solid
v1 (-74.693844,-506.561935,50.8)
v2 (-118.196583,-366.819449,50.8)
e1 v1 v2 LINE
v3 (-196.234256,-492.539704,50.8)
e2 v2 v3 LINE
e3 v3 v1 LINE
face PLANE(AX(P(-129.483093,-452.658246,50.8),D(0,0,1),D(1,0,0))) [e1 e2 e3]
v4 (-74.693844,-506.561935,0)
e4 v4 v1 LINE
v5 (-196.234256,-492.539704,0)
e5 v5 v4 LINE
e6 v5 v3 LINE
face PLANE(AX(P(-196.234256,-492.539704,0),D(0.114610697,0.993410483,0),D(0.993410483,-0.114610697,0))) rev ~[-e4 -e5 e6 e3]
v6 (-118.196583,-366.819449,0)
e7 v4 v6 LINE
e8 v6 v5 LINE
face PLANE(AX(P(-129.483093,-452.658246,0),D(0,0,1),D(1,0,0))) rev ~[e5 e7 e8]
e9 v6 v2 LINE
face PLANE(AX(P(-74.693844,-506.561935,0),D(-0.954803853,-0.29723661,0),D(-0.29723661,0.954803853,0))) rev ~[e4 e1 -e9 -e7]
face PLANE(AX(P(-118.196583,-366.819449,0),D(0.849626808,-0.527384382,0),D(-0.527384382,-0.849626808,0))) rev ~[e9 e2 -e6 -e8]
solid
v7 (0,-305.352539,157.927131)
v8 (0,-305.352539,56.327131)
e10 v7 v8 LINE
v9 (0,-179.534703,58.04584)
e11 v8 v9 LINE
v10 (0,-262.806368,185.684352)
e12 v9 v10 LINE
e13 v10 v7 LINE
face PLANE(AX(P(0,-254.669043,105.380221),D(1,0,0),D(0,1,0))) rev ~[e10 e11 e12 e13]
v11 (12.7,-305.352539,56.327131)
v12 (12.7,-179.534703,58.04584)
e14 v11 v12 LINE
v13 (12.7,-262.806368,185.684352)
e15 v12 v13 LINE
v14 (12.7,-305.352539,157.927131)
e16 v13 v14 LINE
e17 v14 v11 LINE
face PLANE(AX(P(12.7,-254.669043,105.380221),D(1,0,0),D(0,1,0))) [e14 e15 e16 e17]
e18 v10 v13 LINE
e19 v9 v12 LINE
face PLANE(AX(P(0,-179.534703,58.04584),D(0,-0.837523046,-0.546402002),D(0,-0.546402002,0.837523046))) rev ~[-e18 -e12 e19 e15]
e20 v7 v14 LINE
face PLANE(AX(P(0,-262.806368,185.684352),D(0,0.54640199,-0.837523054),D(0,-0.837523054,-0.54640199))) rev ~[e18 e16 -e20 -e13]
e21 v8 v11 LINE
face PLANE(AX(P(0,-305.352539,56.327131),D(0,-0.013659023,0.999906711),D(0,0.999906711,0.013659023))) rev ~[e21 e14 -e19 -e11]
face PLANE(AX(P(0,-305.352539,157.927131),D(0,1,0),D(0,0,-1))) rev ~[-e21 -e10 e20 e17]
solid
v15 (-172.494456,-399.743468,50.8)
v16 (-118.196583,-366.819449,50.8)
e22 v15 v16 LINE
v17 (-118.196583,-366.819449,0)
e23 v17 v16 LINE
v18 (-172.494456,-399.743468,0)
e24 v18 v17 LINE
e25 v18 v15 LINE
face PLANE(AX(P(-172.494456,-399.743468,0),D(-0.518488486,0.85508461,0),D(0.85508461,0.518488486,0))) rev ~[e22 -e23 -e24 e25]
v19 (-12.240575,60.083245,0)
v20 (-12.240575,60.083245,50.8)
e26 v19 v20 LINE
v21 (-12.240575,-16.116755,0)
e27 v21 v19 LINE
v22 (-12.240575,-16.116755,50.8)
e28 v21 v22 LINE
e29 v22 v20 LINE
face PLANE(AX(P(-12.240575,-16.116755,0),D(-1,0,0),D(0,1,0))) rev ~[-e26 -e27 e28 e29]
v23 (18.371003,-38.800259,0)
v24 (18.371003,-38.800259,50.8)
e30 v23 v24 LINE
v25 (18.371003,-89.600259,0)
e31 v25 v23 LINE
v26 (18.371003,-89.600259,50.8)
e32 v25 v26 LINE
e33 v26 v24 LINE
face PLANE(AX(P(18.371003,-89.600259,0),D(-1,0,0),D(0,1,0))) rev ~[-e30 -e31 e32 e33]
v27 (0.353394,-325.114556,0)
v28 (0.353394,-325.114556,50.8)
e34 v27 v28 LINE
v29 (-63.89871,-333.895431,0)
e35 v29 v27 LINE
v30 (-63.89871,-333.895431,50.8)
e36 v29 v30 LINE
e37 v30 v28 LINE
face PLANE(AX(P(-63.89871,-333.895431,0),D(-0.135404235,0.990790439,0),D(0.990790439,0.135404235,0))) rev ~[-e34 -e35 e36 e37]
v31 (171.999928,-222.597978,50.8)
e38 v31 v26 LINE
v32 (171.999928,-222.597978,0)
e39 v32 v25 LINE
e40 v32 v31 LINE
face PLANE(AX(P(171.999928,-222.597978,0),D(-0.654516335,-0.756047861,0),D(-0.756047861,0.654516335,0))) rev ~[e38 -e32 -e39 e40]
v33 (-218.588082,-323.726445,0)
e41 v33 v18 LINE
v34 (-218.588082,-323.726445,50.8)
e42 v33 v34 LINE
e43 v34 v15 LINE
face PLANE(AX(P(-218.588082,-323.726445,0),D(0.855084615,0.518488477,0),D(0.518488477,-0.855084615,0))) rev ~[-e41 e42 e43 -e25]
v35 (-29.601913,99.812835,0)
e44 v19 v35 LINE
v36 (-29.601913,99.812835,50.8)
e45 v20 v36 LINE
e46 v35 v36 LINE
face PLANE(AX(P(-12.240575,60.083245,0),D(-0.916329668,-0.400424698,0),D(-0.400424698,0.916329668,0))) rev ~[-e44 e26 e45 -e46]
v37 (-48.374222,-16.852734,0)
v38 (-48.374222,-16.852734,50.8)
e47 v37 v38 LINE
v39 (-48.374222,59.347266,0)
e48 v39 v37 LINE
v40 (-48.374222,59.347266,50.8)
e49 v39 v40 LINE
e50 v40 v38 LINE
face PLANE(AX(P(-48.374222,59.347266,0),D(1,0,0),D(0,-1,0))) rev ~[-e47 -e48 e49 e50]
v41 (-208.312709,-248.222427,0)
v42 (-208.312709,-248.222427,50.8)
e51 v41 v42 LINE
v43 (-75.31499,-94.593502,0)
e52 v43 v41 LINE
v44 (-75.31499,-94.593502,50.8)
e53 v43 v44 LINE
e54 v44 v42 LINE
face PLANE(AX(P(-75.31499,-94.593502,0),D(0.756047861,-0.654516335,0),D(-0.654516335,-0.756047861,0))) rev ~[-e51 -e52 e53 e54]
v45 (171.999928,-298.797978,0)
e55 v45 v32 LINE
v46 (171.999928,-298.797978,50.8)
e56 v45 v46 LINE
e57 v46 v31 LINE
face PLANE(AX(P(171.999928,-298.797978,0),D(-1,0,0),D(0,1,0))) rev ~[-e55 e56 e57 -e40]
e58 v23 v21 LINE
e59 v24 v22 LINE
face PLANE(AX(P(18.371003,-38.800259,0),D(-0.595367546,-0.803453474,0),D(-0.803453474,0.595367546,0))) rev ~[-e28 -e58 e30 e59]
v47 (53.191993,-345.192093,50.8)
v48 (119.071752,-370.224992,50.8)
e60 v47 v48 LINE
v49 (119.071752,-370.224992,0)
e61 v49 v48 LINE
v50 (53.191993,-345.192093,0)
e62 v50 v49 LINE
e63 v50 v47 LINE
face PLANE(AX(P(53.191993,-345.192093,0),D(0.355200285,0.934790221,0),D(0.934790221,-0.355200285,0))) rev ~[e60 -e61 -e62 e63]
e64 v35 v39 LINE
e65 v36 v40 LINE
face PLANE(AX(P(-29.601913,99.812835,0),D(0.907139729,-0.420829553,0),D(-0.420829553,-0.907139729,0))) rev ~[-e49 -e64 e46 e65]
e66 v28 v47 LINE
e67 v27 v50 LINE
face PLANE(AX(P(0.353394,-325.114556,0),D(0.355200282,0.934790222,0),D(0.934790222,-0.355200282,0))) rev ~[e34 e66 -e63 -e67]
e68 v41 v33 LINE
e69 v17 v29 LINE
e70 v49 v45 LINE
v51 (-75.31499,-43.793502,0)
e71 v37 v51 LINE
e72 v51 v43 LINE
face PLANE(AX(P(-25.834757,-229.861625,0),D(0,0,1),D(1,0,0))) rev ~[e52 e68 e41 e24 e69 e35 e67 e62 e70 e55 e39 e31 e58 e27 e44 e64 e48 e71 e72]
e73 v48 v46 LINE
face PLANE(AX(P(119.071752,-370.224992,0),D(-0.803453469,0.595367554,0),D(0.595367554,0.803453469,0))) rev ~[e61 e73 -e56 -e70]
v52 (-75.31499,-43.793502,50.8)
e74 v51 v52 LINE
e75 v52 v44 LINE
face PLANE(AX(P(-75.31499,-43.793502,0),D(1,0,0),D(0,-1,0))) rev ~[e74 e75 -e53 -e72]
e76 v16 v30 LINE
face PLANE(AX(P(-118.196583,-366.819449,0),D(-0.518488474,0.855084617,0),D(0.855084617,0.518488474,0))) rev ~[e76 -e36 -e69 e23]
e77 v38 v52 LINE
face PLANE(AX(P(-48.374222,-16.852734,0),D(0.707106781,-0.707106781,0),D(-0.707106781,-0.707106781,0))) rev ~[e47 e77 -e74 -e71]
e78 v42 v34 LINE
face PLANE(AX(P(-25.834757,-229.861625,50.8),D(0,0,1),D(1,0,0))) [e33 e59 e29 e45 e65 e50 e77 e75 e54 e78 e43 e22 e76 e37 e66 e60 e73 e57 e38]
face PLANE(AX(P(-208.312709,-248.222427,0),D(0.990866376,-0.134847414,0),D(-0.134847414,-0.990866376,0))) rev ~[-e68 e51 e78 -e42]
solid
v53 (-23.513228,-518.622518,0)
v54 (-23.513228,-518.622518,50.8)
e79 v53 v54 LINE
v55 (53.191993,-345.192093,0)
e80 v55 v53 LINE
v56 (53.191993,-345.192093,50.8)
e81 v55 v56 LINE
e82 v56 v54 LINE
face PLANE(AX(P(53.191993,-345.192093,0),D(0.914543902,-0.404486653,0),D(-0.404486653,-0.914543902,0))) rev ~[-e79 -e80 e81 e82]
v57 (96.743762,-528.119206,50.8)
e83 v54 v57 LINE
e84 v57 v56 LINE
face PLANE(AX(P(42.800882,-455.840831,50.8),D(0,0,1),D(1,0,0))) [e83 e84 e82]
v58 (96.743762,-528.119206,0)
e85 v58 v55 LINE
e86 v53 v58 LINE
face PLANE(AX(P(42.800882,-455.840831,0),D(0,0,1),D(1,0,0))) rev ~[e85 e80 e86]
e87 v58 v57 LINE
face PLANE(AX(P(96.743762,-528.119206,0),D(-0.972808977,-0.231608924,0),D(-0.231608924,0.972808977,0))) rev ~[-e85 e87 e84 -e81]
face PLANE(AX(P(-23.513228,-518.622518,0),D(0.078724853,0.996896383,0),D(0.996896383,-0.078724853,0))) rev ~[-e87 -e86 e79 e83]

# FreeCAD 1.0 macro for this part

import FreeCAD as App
import Part
import Sketcher

V = App.Vector
Q = App.Units.Quantity


def add_polygon(sketch, points):
    """Adds a closed chain of lines whose ends are joined by coincident constraints."""
    first, n = sketch.GeometryCount, len(points)
    for a, b in zip(points, points[1:] + points[:1]):
        sketch.addGeometry(Part.LineSegment(App.Vector(*a, 0), App.Vector(*b, 0)), False)
    for i in range(n):
        sketch.addConstraint(Sketcher.Constraint("Coincident", first + i, 2, first + (i + 1) % n, 1))

doc = App.newDocument("Part")
body = doc.addObject("PartDesign::Body", "Body")
body.AllowCompound = True

sketch1 = doc.addObject("Sketcher::SketchObject", "Sketch")
body.addObject(sketch1)
sketch1.AttachmentSupport = (doc.XY_Plane, [""])
sketch1.MapMode = "FlatFace"
add_polygon(sketch1, [(-48, -17), (-75, -44), (-75, -95), (-208, -248), (-219, -324), (-172, -400), (-118, -367), (-64, -334), (0, -325), (53, -345), (119, -370), (172, -299), (172, -223), (18, -90), (18, -39), (-12, -16), (-12, 60), (-30, 100), (-48, 59)])
add_polygon(sketch1, [(97, -528), (53, -345), (-24, -519)])
add_polygon(sketch1, [(-75, -507), (-118, -367), (-196, -493)])
sketch1.addConstraint([
    Sketcher.Constraint("Vertical", 1),
    Sketcher.Constraint("Vertical", 11),
    Sketcher.Constraint("Vertical", 13),
    Sketcher.Constraint("Vertical", 15),
    Sketcher.Constraint("Vertical", 18),
    Sketcher.Constraint("Coincident", 19, 2, 8, 2),
    Sketcher.Constraint("Coincident", 22, 2, 5, 2),
    Sketcher.Constraint("Perpendicular", 4, 5),
    Sketcher.Constraint("Parallel", 5, 6),
    Sketcher.Constraint("Parallel", 8, 9),
    Sketcher.Constraint("Perpendicular", 2, 12),
    Sketcher.Constraint("Perpendicular", 10, 14),
    Sketcher.Constraint("Equal", 1, 13),
    Sketcher.Constraint("Equal", 11, 15),
    Sketcher.Constraint("Equal", 15, 18),
    Sketcher.Constraint("Equal", 5, 6),
    Sketcher.Constraint("Equal", 4, 10),
    Sketcher.Constraint("Equal", 2, 12),
    Sketcher.Constraint("Equal", 0, 14),
    Sketcher.Constraint("DistanceY", 1, 2, 1, 1, Q("2 in")),
    Sketcher.Constraint("DistanceY", 11, 1, 11, 2, Q("3 in")),
    Sketcher.Constraint("Distance", 2, Q("8 in")),
    Sketcher.Constraint("Distance", 3, Q("3 in")),
    Sketcher.Constraint("Angle", 0, Q("-135 deg")),
    Sketcher.Constraint("Distance", 0, Q("1.5 in")),
    Sketcher.Constraint("Distance", 4, Q("3.5 in")),
    Sketcher.Constraint("Distance", 5, Q("2.5 in")),
    Sketcher.Constraint("DistanceY", 10, 2, -1, 1, Q("11.7636999 in")),
    Sketcher.Constraint("DistanceY", 0, 2, -1, 1, Q("43.793502 mm")),
    Sketcher.Constraint("DistanceX", 3, 2, 5, 2, Q("100.391499 mm")),
    Sketcher.Constraint("DistanceX", 2, 2, 6, 2, Q("144.413999 mm")),
    Sketcher.Constraint("DistanceX", 7, 2, 8, 2, Q("52.838599 mm")),
    Sketcher.Constraint("DistanceY", 9, 2, 8, 2, Q("25.032899 mm")),
    Sketcher.Constraint("DistanceX", 23, 2, 4, 2, Q("23.7398 mm")),
    Sketcher.Constraint("Distance", 16, Q("43.357311 mm")),
    Sketcher.Constraint("Distance", 22, Q("146.357271 mm")),
    Sketcher.Constraint("Distance", 23, Q("147.971149 mm")),
    Sketcher.Constraint("DistanceX", 0, 2, -1, 1, Q("75.31499 mm")),
    Sketcher.Constraint("DistanceX", 2, 2, -1, 1, Q("208.312709 mm")),
    Sketcher.Constraint("DistanceY", 9, 2, -1, 1, Q("370.224992 mm")),
    Sketcher.Constraint("DistanceX", -1, 1, 10, 2, Q("171.999928 mm")),
    Sketcher.Constraint("DistanceX", 20, 2, -1, 1, Q("23.513228 mm")),
    Sketcher.Constraint("DistanceY", 20, 2, -1, 1, Q("518.622518 mm")),
    Sketcher.Constraint("DistanceX", 4, 2, 7, 2, Q("172.84785 mm")),
    Sketcher.Constraint("DistanceX", 16, 2, 15, 2, Q("17.361338 mm")),
    Sketcher.Constraint("DistanceX", 20, 2, 21, 2, Q("120.25699 mm")),
    Sketcher.Constraint("DistanceY", 21, 2, 7, 2, Q("203.00465 mm")),
    Sketcher.Constraint("DistanceX", 23, 2, 24, 2, Q("121.540412 mm")),
])
pad1 = doc.addObject("PartDesign::Pad", "Pad")
body.addObject(pad1)
pad1.Profile = sketch1
pad1.Length = Q("2 in")
body2 = doc.addObject("PartDesign::Body", "Body001")

sketch2 = doc.addObject("Sketcher::SketchObject", "Sketch001")
body2.addObject(sketch2)
sketch2.AttachmentSupport = (doc.getObject("YZ_Plane001"), [""])
sketch2.MapMode = "FlatFace"
add_polygon(sketch2, [(-305, 158), (-305, 56), (-180, 58), (-263, 186)])
sketch2.addConstraint([
    Sketcher.Constraint("Vertical", 0),
    Sketcher.Constraint("Perpendicular", 2, 3),
    Sketcher.Constraint("DistanceY", 0, 2, 0, 1, Q("4 in")),
    Sketcher.Constraint("Distance", 2, Q("6 in")),
    Sketcher.Constraint("Distance", 3, Q("2 in")),
    Sketcher.Constraint("DistanceX", 0, 2, -1, 1, Q("305.352539 mm")),
    Sketcher.Constraint("DistanceY", -1, 1, 0, 2, Q("56.327131 mm")),
    Sketcher.Constraint("DistanceY", -1, 1, 1, 2, Q("58.04584 mm")),
])
pad2 = doc.addObject("PartDesign::Pad", "Pad001")
body2.addObject(pad2)
pad2.Profile = sketch2
pad2.Length = Q("0.5 in")

doc.recompute()
